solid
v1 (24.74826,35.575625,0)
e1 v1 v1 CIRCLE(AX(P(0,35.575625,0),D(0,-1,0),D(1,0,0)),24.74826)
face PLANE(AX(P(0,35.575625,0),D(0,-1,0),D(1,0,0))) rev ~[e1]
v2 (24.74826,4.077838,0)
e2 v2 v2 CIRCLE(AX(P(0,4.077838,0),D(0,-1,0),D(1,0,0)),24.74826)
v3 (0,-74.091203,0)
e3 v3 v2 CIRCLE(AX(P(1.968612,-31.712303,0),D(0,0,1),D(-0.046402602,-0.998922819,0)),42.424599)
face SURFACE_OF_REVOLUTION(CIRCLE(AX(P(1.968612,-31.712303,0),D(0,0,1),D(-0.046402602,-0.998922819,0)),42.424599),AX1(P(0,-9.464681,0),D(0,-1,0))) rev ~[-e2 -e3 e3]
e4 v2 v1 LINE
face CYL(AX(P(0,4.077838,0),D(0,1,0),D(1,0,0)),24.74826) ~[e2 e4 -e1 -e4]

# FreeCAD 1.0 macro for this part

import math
import FreeCAD as App
import Part
import Sketcher

doc = App.newDocument("Part")
params = doc.addObject("Spreadsheet::Sheet", "Params")
for row, (alias, value) in enumerate([
    ("revolution_angle", "360 deg"),
], start=1):
    params.set(f"A{row}", alias)
    params.set(f"B{row}", "=" + value)
    params.setAlias(f"B{row}", alias)

body = doc.addObject("PartDesign::Body", "Body")

sketch1 = doc.addObject("Sketcher::SketchObject", "Sketch")
body.addObject(sketch1)
sketch1.AttachmentSupport = (doc.XY_Plane, [""])
sketch1.MapMode = "FlatFace"
sketch1.addGeometry(Part.LineSegment(App.Vector(25, 36, 0), App.Vector(0, 36, 0)), False)
sketch1.addGeometry(Part.LineSegment(App.Vector(0, 36, 0), App.Vector(0, -74, 0)), False)
sketch1.addGeometry(Part.ArcOfCircle(Part.Circle(App.Vector(2, -32, 0), App.Vector(0, 0, 1), 42), math.radians(-93), math.radians(58)), False)
sketch1.addGeometry(Part.LineSegment(App.Vector(25, 4, 0), App.Vector(25, 36, 0)), False)
sketch1.addConstraint(Sketcher.Constraint("Coincident", 0, 2, 1, 1))
sketch1.addConstraint(Sketcher.Constraint("Coincident", 1, 2, 2, 1))
sketch1.addConstraint(Sketcher.Constraint("Coincident", 2, 2, 3, 1))
sketch1.addConstraint(Sketcher.Constraint("Coincident", 3, 2, 0, 1))
sketch1.addConstraint(Sketcher.Constraint("Horizontal", 0))
sketch1.addConstraint(Sketcher.Constraint("Vertical", 1))
sketch1.addConstraint(Sketcher.Constraint("Vertical", 3))
sketch1.addConstraint(Sketcher.Constraint("PointOnObject", 0, 2, -2))
sketch1.addConstraint(Sketcher.Constraint("Radius", 2, 42.424599))
sketch1.addConstraint(Sketcher.Constraint("DistanceX", 0, 2, 0, 1, 24.74826))
sketch1.addConstraint(Sketcher.Constraint("DistanceY", 1, 2, 2, 3, 42.3789))
sketch1.addConstraint(Sketcher.Constraint("DistanceY", 1, 2, 1, 1, 109.666828))
sketch1.addConstraint(Sketcher.Constraint("DistanceY", -1, 1, 2, 2, 4.077838))
revolution = doc.addObject("PartDesign::Revolution", "Revolution")
body.addObject(revolution)
revolution.Profile = sketch1
revolution.ReferenceAxis = (sketch1, ["V_Axis"])
revolution.setExpression("Angle", "Params.revolution_angle")

doc.recompute()
